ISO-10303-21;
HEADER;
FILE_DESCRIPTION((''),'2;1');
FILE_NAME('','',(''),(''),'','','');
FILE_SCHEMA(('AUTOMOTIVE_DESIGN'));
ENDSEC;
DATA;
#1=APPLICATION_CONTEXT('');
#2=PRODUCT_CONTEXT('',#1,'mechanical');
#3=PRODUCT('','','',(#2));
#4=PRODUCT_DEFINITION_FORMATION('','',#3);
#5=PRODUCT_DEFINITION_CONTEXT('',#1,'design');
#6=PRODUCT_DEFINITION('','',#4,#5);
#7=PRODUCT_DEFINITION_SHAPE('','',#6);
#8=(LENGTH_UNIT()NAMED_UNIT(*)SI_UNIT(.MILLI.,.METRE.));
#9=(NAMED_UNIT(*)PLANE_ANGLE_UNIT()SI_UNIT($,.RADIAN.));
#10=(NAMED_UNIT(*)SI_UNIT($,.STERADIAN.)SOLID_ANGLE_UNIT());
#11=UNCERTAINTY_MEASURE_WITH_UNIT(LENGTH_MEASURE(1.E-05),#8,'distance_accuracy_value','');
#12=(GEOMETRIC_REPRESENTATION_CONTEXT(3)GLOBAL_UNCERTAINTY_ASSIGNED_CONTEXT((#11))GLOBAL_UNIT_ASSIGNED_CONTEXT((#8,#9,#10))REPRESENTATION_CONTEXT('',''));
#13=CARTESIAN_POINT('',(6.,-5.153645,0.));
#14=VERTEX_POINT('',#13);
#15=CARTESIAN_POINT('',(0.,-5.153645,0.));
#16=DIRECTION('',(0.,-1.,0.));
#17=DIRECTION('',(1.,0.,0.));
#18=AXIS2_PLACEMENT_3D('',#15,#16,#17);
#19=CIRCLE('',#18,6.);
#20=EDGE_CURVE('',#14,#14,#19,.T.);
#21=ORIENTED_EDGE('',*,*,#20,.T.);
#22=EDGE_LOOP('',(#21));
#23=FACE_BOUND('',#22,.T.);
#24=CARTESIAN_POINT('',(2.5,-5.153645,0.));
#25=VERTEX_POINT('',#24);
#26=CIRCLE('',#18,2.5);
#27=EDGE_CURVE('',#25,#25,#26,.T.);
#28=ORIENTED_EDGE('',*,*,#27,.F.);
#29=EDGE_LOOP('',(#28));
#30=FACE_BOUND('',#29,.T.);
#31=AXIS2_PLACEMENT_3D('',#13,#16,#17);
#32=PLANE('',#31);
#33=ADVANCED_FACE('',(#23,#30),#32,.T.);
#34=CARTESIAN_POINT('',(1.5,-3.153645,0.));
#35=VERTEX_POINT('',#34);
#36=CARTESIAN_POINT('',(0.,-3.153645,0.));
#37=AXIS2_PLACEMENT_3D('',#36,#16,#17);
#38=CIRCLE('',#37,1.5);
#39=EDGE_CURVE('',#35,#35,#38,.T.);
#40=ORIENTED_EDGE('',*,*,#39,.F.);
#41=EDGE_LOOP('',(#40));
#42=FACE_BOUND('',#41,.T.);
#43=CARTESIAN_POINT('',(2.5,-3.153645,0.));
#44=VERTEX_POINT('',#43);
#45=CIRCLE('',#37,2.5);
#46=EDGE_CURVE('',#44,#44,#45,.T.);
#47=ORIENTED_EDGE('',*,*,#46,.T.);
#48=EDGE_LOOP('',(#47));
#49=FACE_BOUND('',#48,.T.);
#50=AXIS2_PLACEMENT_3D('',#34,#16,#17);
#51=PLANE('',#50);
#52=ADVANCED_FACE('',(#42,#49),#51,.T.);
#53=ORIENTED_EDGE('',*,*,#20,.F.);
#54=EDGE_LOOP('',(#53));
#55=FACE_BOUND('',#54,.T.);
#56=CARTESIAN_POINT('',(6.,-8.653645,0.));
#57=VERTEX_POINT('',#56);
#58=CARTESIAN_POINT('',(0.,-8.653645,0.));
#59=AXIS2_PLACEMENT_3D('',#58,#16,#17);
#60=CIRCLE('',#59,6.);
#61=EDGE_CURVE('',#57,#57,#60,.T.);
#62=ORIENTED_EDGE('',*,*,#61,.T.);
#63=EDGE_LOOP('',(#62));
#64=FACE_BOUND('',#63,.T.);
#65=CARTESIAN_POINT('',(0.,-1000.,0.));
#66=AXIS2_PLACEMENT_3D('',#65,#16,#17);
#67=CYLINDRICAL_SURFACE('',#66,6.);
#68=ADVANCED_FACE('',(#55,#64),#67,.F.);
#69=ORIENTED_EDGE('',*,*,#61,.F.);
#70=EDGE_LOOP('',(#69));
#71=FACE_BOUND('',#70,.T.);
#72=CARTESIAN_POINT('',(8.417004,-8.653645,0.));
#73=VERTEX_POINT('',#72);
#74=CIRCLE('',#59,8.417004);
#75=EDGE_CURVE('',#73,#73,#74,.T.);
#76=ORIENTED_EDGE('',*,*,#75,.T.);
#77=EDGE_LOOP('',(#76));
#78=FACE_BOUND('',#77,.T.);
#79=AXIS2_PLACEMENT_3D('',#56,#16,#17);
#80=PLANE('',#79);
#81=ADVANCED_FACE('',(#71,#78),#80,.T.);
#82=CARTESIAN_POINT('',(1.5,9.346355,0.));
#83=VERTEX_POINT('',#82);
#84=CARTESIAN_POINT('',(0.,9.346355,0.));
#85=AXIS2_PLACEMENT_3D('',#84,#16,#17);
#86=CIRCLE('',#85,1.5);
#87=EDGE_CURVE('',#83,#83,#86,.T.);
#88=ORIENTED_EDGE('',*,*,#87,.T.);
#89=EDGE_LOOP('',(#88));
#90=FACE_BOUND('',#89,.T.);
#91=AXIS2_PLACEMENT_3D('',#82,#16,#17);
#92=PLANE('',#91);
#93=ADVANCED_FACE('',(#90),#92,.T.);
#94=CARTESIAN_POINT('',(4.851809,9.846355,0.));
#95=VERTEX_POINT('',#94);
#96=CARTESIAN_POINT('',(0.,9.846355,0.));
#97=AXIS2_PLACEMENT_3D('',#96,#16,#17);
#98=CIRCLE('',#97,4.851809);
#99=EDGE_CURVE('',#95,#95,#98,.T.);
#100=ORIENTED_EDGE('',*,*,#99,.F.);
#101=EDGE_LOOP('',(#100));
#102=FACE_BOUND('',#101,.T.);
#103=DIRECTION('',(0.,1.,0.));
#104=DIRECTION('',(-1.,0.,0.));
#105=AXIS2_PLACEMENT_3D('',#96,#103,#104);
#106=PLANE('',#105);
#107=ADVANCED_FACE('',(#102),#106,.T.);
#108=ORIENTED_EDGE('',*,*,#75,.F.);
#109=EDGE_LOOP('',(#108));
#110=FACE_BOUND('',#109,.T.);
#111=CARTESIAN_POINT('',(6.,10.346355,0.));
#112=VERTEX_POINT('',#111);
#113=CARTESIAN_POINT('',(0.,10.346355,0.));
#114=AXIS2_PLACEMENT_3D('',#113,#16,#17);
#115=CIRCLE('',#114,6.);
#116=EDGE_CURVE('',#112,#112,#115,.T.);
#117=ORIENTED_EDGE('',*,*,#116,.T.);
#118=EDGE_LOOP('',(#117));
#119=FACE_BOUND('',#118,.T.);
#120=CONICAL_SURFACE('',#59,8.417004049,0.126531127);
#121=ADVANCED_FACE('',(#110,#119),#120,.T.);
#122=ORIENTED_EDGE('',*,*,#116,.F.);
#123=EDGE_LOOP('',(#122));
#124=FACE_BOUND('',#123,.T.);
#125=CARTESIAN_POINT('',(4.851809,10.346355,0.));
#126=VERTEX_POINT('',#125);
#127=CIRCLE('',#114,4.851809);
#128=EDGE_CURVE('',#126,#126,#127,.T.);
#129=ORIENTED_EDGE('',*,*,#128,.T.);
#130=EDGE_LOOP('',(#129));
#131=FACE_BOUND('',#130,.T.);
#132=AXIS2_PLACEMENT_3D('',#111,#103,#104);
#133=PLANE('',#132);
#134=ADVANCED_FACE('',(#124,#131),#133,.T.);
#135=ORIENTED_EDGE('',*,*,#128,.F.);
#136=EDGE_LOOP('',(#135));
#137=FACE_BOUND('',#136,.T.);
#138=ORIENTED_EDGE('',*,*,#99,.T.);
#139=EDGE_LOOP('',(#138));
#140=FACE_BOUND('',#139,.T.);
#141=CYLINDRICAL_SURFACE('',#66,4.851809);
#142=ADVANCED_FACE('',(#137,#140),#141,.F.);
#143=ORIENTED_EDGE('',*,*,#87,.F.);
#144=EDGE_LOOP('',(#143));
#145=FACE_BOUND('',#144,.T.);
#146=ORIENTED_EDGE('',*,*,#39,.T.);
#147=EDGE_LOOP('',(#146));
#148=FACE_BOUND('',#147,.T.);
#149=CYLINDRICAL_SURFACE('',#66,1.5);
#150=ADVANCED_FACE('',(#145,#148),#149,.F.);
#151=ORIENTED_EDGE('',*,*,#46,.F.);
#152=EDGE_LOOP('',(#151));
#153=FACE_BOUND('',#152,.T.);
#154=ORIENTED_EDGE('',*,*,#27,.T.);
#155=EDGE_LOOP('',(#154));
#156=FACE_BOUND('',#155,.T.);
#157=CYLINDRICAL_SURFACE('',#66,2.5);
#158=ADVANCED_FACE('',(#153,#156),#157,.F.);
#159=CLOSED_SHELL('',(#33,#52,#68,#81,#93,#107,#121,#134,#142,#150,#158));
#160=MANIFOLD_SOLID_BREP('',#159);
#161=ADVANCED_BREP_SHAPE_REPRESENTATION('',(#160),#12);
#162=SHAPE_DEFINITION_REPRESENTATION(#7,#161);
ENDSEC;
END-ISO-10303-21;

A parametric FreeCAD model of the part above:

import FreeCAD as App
import Part
import Sketcher

V = App.Vector
Q = App.Units.Quantity


def add_polygon(sketch, points):
    """Adds a closed chain of lines whose ends are joined by coincident constraints."""
    first, n = sketch.GeometryCount, len(points)
    for a, b in zip(points, points[1:] + points[:1]):
        sketch.addGeometry(Part.LineSegment(App.Vector(*a, 0), App.Vector(*b, 0)), False)
    for i in range(n):
        sketch.addConstraint(Sketcher.Constraint("Coincident", first + i, 2, first + (i + 1) % n, 1))

doc = App.newDocument("Part")
body = doc.addObject("PartDesign::Body", "Body")

# Sketch on XY plane
sketch1 = body.newObject("Sketcher::SketchObject", "Sketch")
sketch1.AttachmentSupport = (doc.getObject("XY_Plane"), [""])
sketch1.MapMode = "FlatFace"
add_polygon(sketch1, [(0, 9.846355), (0, 9.346355), (1.5, 9.346355), (1.5, -3.153645), (2.5, -3.153645), (2.5, -5.153645), (6, -5.153645), (6, -8.653645), (8.417004, -8.653645), (6, 10.346355), (4.851809, 10.346355), (4.851809, 9.846355)])  # lines 0-11
sketch1.addConstraint([
    Sketcher.Constraint("Vertical", 0),
    Sketcher.Constraint("Horizontal", 1),
    Sketcher.Constraint("Vertical", 2),
    Sketcher.Constraint("Horizontal", 3),
    Sketcher.Constraint("Vertical", 4),
    Sketcher.Constraint("Horizontal", 5),
    Sketcher.Constraint("Vertical", 6),
    Sketcher.Constraint("Horizontal", 7),
    Sketcher.Constraint("Horizontal", 9),
    Sketcher.Constraint("Vertical", 10),
    Sketcher.Constraint("Horizontal", 11),
    Sketcher.Constraint("PointOnObject", 0, 2, -2),
    Sketcher.Constraint("Vertical", 6, 2, 8, 2),
    Sketcher.Constraint("Equal", 5, 6),
    Sketcher.Constraint("Equal", 0, 10),
    Sketcher.Constraint("DistanceX", 3, 1, 3, 2, Q("1 mm")),
    Sketcher.Constraint("DistanceY", 4, 2, 4, 1, Q("2 mm")),
    Sketcher.Constraint("DistanceX", 1, 1, 1, 2, Q("1.5 mm")),
    Sketcher.Constraint("DistanceX", 5, 1, 5, 2, Q("3.5 mm")),
    Sketcher.Constraint("DistanceY", 0, 2, 0, 1, Q("0.5 mm")),
    Sketcher.Constraint("DistanceY", 2, 2, 2, 1, Q("12.5 mm")),
    Sketcher.Constraint("DistanceX", 9, 2, 9, 1, Q("1.148191 mm")),
    Sketcher.Constraint("DistanceX", 7, 1, 7, 2, Q("2.417004 mm")),
    Sketcher.Constraint("DistanceY", -1, 1, 0, 2, Q("9.346355 mm")),
])
revolution = body.newObject("PartDesign::Revolution", "Revolution")
revolution.Profile = sketch1
revolution.ReferenceAxis = (sketch1, ["V_Axis"])
revolution.Angle = 360

doc.recompute()
